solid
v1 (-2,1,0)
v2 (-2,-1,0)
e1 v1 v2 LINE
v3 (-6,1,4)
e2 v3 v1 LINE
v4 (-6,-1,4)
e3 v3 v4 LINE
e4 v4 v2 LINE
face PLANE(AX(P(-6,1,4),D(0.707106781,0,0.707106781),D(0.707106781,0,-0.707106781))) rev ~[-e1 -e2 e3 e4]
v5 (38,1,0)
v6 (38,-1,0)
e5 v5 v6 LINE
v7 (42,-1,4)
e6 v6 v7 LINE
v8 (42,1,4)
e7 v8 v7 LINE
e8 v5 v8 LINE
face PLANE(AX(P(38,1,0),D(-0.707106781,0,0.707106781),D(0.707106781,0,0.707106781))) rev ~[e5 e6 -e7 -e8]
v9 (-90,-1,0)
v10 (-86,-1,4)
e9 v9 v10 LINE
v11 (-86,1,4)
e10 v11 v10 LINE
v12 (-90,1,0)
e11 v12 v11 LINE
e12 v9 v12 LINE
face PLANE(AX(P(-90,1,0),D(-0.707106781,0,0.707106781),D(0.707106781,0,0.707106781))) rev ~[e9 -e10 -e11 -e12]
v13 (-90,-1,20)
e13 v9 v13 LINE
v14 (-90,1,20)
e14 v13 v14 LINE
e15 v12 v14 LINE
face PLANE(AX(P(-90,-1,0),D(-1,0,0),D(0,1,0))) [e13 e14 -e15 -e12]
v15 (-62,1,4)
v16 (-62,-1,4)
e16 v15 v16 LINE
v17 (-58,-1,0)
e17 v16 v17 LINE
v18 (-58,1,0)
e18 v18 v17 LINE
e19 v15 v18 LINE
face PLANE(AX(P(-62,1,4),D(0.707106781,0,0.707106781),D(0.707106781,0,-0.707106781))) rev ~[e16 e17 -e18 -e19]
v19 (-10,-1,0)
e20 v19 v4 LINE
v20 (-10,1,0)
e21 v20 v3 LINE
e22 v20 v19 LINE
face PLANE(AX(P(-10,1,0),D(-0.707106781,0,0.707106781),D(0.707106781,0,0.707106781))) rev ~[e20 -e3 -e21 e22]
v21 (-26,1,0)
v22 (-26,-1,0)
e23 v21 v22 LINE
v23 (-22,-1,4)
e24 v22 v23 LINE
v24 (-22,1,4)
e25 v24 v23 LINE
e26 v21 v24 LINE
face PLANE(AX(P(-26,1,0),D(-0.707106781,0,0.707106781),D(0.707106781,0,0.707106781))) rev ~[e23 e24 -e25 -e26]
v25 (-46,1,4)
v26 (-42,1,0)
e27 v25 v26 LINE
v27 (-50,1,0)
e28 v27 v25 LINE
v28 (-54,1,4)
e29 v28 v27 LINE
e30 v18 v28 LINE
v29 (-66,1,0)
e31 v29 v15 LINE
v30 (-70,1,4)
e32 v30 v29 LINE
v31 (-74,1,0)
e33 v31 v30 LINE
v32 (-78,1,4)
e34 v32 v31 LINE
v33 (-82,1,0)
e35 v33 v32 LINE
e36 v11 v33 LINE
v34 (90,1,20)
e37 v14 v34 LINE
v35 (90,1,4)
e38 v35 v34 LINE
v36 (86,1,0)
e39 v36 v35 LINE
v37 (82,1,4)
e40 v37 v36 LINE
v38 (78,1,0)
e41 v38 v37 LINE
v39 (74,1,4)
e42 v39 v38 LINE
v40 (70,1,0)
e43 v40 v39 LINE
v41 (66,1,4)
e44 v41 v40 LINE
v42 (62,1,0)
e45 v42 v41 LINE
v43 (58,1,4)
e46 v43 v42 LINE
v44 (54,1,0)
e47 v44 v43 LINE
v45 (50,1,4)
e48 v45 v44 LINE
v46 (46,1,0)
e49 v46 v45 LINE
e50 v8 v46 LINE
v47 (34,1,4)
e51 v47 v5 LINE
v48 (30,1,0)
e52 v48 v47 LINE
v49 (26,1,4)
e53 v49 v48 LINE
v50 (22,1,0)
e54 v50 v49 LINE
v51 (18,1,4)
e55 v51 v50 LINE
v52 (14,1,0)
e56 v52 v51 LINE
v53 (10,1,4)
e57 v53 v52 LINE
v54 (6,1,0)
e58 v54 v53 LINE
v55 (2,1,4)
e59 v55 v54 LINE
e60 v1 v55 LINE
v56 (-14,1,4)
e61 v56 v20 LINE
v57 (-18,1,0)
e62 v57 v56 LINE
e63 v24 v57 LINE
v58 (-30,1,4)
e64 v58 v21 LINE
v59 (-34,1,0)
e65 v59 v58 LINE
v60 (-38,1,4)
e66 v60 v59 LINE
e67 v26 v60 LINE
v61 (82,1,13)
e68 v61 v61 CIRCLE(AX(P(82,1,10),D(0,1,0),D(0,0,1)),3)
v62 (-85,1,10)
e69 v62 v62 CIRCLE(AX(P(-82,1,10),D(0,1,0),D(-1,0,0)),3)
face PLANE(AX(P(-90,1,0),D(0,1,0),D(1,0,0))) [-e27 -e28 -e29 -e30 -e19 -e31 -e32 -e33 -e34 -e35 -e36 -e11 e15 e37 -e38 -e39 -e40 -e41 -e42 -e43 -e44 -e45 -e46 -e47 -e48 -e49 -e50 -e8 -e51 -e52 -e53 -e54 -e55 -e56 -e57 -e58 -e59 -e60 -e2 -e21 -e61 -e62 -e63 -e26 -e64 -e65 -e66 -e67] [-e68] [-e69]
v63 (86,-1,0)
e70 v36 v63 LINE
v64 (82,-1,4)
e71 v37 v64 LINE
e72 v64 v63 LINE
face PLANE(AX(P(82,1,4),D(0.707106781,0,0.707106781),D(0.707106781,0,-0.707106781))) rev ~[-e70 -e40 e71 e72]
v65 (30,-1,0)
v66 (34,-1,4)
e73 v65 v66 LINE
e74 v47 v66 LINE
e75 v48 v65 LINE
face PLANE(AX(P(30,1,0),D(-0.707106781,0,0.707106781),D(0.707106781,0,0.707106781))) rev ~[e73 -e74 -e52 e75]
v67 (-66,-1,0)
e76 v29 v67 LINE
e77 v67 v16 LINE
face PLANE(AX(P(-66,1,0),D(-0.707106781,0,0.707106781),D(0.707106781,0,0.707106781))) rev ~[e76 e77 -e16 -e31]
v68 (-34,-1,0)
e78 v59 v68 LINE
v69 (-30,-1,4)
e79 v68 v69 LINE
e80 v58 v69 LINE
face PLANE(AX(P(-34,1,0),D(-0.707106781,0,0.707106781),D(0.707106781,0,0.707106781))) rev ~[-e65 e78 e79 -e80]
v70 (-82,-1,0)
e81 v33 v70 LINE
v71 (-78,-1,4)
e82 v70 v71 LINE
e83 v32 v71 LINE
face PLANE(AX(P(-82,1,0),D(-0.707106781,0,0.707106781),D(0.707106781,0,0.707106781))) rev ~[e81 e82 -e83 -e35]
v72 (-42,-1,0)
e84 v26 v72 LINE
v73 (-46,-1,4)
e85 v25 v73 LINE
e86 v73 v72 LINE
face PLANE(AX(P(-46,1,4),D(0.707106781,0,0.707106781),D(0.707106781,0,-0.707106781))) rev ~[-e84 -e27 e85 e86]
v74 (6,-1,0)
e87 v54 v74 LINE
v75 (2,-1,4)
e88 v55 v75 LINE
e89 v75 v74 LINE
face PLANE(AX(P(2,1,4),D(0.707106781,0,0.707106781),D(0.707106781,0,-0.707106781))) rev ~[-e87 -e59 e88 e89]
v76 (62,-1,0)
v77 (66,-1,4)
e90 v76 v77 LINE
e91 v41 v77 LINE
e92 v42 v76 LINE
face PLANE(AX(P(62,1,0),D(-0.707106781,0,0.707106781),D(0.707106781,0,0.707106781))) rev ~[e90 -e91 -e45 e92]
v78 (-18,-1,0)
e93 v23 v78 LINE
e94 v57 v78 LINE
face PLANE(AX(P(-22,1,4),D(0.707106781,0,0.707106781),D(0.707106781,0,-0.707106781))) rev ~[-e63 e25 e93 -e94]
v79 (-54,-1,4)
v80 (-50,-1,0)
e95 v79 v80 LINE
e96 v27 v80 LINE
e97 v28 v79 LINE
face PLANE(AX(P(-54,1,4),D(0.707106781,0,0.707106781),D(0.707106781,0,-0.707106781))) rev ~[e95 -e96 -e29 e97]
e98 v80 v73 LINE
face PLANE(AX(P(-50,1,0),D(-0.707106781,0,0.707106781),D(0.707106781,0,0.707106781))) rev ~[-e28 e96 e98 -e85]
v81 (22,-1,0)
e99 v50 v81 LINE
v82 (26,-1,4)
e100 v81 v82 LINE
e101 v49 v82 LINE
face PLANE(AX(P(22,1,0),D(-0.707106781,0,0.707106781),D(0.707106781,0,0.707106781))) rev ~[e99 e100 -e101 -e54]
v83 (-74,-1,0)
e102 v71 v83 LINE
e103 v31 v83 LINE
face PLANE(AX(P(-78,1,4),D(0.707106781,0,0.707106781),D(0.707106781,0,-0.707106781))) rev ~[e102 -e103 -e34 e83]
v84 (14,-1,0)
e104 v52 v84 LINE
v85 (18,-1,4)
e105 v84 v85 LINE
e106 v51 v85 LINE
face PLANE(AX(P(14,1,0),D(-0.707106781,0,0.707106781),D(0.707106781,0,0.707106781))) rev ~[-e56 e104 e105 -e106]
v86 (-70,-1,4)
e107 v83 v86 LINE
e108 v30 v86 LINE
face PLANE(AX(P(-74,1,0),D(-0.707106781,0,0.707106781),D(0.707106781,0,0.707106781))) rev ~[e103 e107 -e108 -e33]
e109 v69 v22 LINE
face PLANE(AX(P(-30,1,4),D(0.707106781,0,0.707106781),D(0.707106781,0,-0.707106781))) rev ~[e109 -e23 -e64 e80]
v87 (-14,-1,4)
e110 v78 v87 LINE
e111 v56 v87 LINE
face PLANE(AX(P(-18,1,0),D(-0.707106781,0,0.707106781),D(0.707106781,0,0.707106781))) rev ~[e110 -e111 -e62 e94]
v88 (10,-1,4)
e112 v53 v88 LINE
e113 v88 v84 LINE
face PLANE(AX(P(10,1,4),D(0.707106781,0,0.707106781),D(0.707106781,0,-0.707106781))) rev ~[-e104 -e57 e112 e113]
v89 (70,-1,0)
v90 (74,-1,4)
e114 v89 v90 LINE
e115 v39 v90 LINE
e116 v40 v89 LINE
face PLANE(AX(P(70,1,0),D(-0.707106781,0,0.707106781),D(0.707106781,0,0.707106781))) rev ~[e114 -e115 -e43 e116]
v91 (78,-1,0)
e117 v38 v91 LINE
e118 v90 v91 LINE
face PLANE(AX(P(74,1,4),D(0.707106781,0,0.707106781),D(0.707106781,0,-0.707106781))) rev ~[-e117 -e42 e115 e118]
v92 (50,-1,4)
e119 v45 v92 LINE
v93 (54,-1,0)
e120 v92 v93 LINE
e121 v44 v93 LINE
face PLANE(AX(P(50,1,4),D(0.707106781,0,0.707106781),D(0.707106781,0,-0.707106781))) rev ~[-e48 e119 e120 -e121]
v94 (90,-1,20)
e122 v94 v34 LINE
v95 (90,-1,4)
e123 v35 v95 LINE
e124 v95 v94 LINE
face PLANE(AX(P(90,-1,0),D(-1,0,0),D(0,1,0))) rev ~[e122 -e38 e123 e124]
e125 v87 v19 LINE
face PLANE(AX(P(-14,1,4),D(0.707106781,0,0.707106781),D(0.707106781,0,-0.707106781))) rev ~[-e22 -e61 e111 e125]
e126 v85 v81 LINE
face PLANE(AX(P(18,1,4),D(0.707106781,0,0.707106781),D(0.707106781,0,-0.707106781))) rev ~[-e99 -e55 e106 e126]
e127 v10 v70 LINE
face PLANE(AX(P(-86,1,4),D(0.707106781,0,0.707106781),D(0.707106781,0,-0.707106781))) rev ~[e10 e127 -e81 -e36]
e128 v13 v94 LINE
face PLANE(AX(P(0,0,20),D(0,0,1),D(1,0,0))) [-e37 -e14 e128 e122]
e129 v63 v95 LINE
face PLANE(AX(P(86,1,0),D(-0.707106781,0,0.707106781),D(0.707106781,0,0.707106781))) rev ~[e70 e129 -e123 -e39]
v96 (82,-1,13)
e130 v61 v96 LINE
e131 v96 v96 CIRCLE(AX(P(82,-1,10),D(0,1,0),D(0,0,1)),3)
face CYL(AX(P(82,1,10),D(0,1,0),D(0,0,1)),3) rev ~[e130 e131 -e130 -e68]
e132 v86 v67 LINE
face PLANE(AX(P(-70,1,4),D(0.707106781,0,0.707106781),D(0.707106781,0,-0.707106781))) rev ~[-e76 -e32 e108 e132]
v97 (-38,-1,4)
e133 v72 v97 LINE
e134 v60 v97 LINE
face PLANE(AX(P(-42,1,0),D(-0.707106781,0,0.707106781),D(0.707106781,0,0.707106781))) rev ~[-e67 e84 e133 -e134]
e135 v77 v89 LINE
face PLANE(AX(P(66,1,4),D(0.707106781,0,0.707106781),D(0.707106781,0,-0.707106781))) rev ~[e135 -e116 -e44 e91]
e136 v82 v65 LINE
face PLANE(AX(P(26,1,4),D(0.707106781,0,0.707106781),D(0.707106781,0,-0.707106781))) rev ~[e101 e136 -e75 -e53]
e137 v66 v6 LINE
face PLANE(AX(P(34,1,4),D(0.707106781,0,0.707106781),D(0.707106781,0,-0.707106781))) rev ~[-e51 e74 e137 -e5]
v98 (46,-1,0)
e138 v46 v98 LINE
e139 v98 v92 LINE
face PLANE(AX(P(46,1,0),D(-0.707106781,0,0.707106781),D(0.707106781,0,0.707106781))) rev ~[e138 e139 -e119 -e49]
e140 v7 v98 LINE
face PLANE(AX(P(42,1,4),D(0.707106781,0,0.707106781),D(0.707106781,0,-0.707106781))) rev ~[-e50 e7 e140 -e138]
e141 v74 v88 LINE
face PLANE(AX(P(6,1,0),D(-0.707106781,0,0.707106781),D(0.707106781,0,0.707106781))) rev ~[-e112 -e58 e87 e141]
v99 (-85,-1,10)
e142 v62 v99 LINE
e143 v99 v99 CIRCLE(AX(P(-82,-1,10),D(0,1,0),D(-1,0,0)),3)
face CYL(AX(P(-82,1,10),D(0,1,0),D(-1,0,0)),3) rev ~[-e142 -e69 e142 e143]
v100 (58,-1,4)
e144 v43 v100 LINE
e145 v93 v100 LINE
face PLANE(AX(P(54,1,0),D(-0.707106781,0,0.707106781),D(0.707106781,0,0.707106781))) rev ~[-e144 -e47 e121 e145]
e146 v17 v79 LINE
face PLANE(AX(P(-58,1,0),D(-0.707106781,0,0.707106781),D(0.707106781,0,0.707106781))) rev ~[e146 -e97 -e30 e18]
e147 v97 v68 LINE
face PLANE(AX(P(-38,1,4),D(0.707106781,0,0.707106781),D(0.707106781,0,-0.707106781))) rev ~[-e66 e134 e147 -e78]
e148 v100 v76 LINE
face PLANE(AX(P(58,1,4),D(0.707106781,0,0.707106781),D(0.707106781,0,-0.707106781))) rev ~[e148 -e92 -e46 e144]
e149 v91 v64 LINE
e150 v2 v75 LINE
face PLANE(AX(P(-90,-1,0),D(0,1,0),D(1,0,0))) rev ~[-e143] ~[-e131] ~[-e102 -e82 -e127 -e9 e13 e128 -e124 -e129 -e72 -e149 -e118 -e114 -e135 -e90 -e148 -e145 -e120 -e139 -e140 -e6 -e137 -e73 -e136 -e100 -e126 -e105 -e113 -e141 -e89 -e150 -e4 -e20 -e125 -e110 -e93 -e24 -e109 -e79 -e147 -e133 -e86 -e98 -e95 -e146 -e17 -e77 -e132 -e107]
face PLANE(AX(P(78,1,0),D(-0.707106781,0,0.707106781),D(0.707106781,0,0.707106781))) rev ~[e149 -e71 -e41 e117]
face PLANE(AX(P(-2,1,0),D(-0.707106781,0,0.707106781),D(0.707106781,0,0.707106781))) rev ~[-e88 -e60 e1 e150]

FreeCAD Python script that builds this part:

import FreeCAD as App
import Part
import Sketcher

V = App.Vector


def add_polygon(sketch, points):
    """Adds a closed chain of lines whose ends are joined by coincident constraints."""
    first, n = sketch.GeometryCount, len(points)
    for a, b in zip(points, points[1:] + points[:1]):
        sketch.addGeometry(Part.LineSegment(App.Vector(*a, 0), App.Vector(*b, 0)), False)
    for i in range(n):
        sketch.addConstraint(Sketcher.Constraint("Coincident", first + i, 2, first + (i + 1) % n, 1))

doc = App.newDocument("Part")
body = doc.addObject("PartDesign::Body", "Body")

# Sketch on XY plane
sketch1 = body.newObject("Sketcher::SketchObject", "Sketch")
sketch1.AttachmentSupport = (doc.getObject("XY_Plane"), [""])
sketch1.MapMode = "FlatFace"
add_polygon(sketch1, [(-90, 1), (-90, -1), (90, -1), (90, 1)])  # lines 0-3
sketch1.addConstraint([
    Sketcher.Constraint("Vertical", 0),
    Sketcher.Constraint("Horizontal", 1),
    Sketcher.Constraint("Vertical", 2),
    Sketcher.Constraint("Horizontal", 3),
    Sketcher.Constraint("Symmetric", 0, 2, 2, 2, -1, 1),
    Sketcher.Constraint("DistanceX", 1, 1, 1, 2, 180.0),
    Sketcher.Constraint("DistanceY", 0, 2, 0, 1, 2.0),
])
pad1 = body.newObject("PartDesign::Pad", "Pad")
pad1.Profile = sketch1
pad1.Length = 20

# Sketch on XZ plane
sketch2 = body.newObject("Sketcher::SketchObject", "Sketch001")
sketch2.AttachmentSupport = (doc.getObject("XZ_Plane"), [""])
sketch2.MapMode = "FlatFace"
sketch2.AttachmentOffset = App.Placement(V(0, 0, -1), App.Rotation())
sketch2.addGeometry([
    Part.Circle(V(82, 10, 0), V(0, 0, 1), 3),
    Part.Circle(V(-82, 10, 0), V(0, 0, 1), 3),
], False)
sketch2.addConstraint([
    Sketcher.Constraint("Equal", 0, 1),
    Sketcher.Constraint("Symmetric", 0, 3, 1, 3, -2),
    Sketcher.Constraint("Diameter", 0, 6.0),
    Sketcher.Constraint("DistanceX", -1, 1, 0, 3, 82.0),
    Sketcher.Constraint("DistanceY", -1, 1, 0, 3, 10.0),
])
pocket1 = body.newObject("PartDesign::Pocket", "Pocket")
pocket1.Profile = sketch2
pocket1.Length = 20
pocket1.Reversed = True

# Sketch on XZ plane
sketch3 = body.newObject("Sketcher::SketchObject", "Sketch002")
sketch3.AttachmentSupport = (doc.getObject("XZ_Plane"), [""])
sketch3.MapMode = "FlatFace"
sketch3.AttachmentOffset = App.Placement(V(0, 0, -1), App.Rotation())
add_polygon(sketch3, [(-14, 4), (-10, 0), (-18, 0)])  # lines 0-2
add_polygon(sketch3, [(-22, 4), (-18, 0), (-26, 0)])  # lines 3-5
add_polygon(sketch3, [(82, 4), (86, 0), (78, 0)])  # lines 6-8
add_polygon(sketch3, [(86, 0), (90, 4), (90, 0)])  # lines 9-11
add_polygon(sketch3, [(74, 4), (78, 0), (70, 0)])  # lines 12-14
add_polygon(sketch3, [(66, 4), (70, 0), (62, 0)])  # lines 15-17
add_polygon(sketch3, [(58, 4), (62, 0), (54, 0)])  # lines 18-20
add_polygon(sketch3, [(50, 4), (54, 0), (46, 0)])  # lines 21-23
add_polygon(sketch3, [(42, 4), (46, 0), (38, 0)])  # lines 24-26
add_polygon(sketch3, [(34, 4), (38, 0), (30, 0)])  # lines 27-29
add_polygon(sketch3, [(26, 4), (30, 0), (22, 0)])  # lines 30-32
add_polygon(sketch3, [(18, 4), (22, 0), (14, 0)])  # lines 33-35
add_polygon(sketch3, [(10, 4), (14, 0), (6, 0)])  # lines 36-38
add_polygon(sketch3, [(2, 4), (6, 0), (-2, 0)])  # lines 39-41
add_polygon(sketch3, [(-30, 4), (-26, 0), (-34, 0)])  # lines 42-44
add_polygon(sketch3, [(-6, 4), (-2, 0), (-10, 0)])  # lines 45-47
add_polygon(sketch3, [(-38, 4), (-34, 0), (-42, 0)])  # lines 48-50
add_polygon(sketch3, [(-86, 4), (-82, 0), (-90, 0)])  # lines 51-53
add_polygon(sketch3, [(-78, 4), (-74, 0), (-82, 0)])  # lines 54-56
add_polygon(sketch3, [(-70, 4), (-66, 0), (-74, 0)])  # lines 57-59
add_polygon(sketch3, [(-62, 4), (-58, 0), (-66, 0)])  # lines 60-62
add_polygon(sketch3, [(-54, 4), (-50, 0), (-58, 0)])  # lines 63-65
add_polygon(sketch3, [(-46, 4), (-42, 0), (-50, 0)])  # lines 66-68
sketch3.addConstraint([
    Sketcher.Constraint("Horizontal", 1),
    Sketcher.Constraint("Horizontal", 4),
    Sketcher.Constraint("Horizontal", 7),
    Sketcher.Constraint("Vertical", 10),
    Sketcher.Constraint("Horizontal", 11),
    Sketcher.Constraint("Horizontal", 13),
    Sketcher.Constraint("Horizontal", 16),
    Sketcher.Constraint("Horizontal", 19),
    Sketcher.Constraint("Horizontal", 22),
    Sketcher.Constraint("Horizontal", 25),
    Sketcher.Constraint("Horizontal", 28),
    Sketcher.Constraint("Horizontal", 31),
    Sketcher.Constraint("Horizontal", 34),
    Sketcher.Constraint("Horizontal", 37),
    Sketcher.Constraint("Horizontal", 40),
    Sketcher.Constraint("Horizontal", 43),
    Sketcher.Constraint("Horizontal", 46),
    Sketcher.Constraint("Horizontal", 49),
    Sketcher.Constraint("Horizontal", 52),
    Sketcher.Constraint("Horizontal", 55),
    Sketcher.Constraint("Horizontal", 58),
    Sketcher.Constraint("Horizontal", 61),
    Sketcher.Constraint("Horizontal", 64),
    Sketcher.Constraint("Horizontal", 67),
    Sketcher.Constraint("Coincident", 3, 2, 1, 2),
    Sketcher.Constraint("Coincident", 11, 2, 6, 2),
    Sketcher.Constraint("Coincident", 12, 2, 7, 2),
    Sketcher.Constraint("Coincident", 15, 2, 13, 2),
    Sketcher.Constraint("Coincident", 18, 2, 16, 2),
    Sketcher.Constraint("Coincident", 21, 2, 19, 2),
    Sketcher.Constraint("Coincident", 24, 2, 22, 2),
    Sketcher.Constraint("Coincident", 27, 2, 25, 2),
    Sketcher.Constraint("Coincident", 30, 2, 28, 2),
    Sketcher.Constraint("Coincident", 33, 2, 31, 2),
    Sketcher.Constraint("Coincident", 36, 2, 34, 2),
    Sketcher.Constraint("Coincident", 39, 2, 37, 2),
    Sketcher.Constraint("Coincident", 42, 2, 4, 2),
    Sketcher.Constraint("Coincident", 45, 2, 40, 2),
    Sketcher.Constraint("Coincident", 46, 2, 0, 2),
    Sketcher.Constraint("Coincident", 48, 2, 43, 2),
    Sketcher.Constraint("Coincident", 55, 2, 51, 2),
    Sketcher.Constraint("Coincident", 58, 2, 54, 2),
    Sketcher.Constraint("Coincident", 61, 2, 57, 2),
    Sketcher.Constraint("Coincident", 64, 2, 60, 2),
    Sketcher.Constraint("Coincident", 66, 2, 49, 2),
    Sketcher.Constraint("Coincident", 67, 2, 63, 2),
    Sketcher.Constraint("Symmetric", 10, 2, 52, 2, -1, 1),
    Sketcher.Constraint("Perpendicular", 0, 2),
    Sketcher.Constraint("Perpendicular", 2, 3),
    Sketcher.Constraint("Perpendicular", 3, 5),
    Sketcher.Constraint("Perpendicular", 5, 6),
    Sketcher.Constraint("Perpendicular", 6, 8),
    Sketcher.Constraint("Parallel", 8, 9),
    Sketcher.Constraint("Perpendicular", 9, 12),
    Sketcher.Constraint("Perpendicular", 12, 14),
    Sketcher.Constraint("Perpendicular", 14, 15),
    Sketcher.Constraint("Perpendicular", 15, 17),
    Sketcher.Constraint("Perpendicular", 17, 18),
    Sketcher.Constraint("Perpendicular", 18, 20),
    Sketcher.Constraint("Perpendicular", 20, 21),
    Sketcher.Constraint("Perpendicular", 21, 23),
    Sketcher.Constraint("Perpendicular", 23, 24),
    Sketcher.Constraint("Perpendicular", 24, 26),
    Sketcher.Constraint("Perpendicular", 26, 27),
    Sketcher.Constraint("Perpendicular", 27, 29),
    Sketcher.Constraint("Perpendicular", 29, 30),
    Sketcher.Constraint("Perpendicular", 30, 32),
    Sketcher.Constraint("Perpendicular", 32, 33),
    Sketcher.Constraint("Perpendicular", 33, 35),
    Sketcher.Constraint("Perpendicular", 35, 36),
    Sketcher.Constraint("Perpendicular", 36, 38),
    Sketcher.Constraint("Perpendicular", 38, 39),
    Sketcher.Constraint("Perpendicular", 39, 41),
    Sketcher.Constraint("Perpendicular", 41, 42),
    Sketcher.Constraint("Perpendicular", 42, 44),
    Sketcher.Constraint("Perpendicular", 44, 45),
    Sketcher.Constraint("Perpendicular", 45, 47),
    Sketcher.Constraint("Perpendicular", 47, 48),
    Sketcher.Constraint("Perpendicular", 48, 50),
    Sketcher.Constraint("Perpendicular", 50, 51),
    Sketcher.Constraint("Perpendicular", 51, 53),
    Sketcher.Constraint("Perpendicular", 53, 54),
    Sketcher.Constraint("Perpendicular", 54, 56),
    Sketcher.Constraint("Perpendicular", 56, 57),
    Sketcher.Constraint("Perpendicular", 57, 59),
    Sketcher.Constraint("Perpendicular", 59, 60),
    Sketcher.Constraint("Perpendicular", 60, 62),
    Sketcher.Constraint("Perpendicular", 62, 63),
    Sketcher.Constraint("Perpendicular", 63, 65),
    Sketcher.Constraint("Perpendicular", 65, 66),
    Sketcher.Constraint("Perpendicular", 66, 68),
    Sketcher.Constraint("Horizontal", 2, 2, 5, 2),
    Sketcher.Constraint("Horizontal", 5, 2, 8, 2),
    Sketcher.Constraint("Horizontal", 8, 2, 9, 2),
    Sketcher.Constraint("Horizontal", 9, 2, 14, 2),
    Sketcher.Constraint("Horizontal", 14, 2, 17, 2),
    Sketcher.Constraint("Horizontal", 17, 2, 20, 2),
    Sketcher.Constraint("Horizontal", 20, 2, 23, 2),
    Sketcher.Constraint("Horizontal", 23, 2, 26, 2),
    Sketcher.Constraint("Horizontal", 26, 2, 29, 2),
    Sketcher.Constraint("Horizontal", 29, 2, 32, 2),
    Sketcher.Constraint("Horizontal", 32, 2, 35, 2),
    Sketcher.Constraint("Horizontal", 35, 2, 38, 2),
    Sketcher.Constraint("Horizontal", 38, 2, 41, 2),
    Sketcher.Constraint("Horizontal", 41, 2, 44, 2),
    Sketcher.Constraint("Horizontal", 44, 2, 47, 2),
    Sketcher.Constraint("Horizontal", 47, 2, 50, 2),
    Sketcher.Constraint("Horizontal", 50, 2, 53, 2),
    Sketcher.Constraint("Horizontal", 53, 2, 56, 2),
    Sketcher.Constraint("Horizontal", 56, 2, 59, 2),
    Sketcher.Constraint("Horizontal", 59, 2, 62, 2),
    Sketcher.Constraint("Horizontal", 62, 2, 65, 2),
    Sketcher.Constraint("Horizontal", 65, 2, 68, 2),
    Sketcher.Constraint("Equal", 11, 10),
    Sketcher.Constraint("DistanceX", 1, 2, 1, 1, 8.0),
])
pocket2 = body.newObject("PartDesign::Pocket", "Pocket001")
pocket2.Profile = sketch3
pocket2.Length = 20
pocket2.Reversed = True

doc.recompute()
